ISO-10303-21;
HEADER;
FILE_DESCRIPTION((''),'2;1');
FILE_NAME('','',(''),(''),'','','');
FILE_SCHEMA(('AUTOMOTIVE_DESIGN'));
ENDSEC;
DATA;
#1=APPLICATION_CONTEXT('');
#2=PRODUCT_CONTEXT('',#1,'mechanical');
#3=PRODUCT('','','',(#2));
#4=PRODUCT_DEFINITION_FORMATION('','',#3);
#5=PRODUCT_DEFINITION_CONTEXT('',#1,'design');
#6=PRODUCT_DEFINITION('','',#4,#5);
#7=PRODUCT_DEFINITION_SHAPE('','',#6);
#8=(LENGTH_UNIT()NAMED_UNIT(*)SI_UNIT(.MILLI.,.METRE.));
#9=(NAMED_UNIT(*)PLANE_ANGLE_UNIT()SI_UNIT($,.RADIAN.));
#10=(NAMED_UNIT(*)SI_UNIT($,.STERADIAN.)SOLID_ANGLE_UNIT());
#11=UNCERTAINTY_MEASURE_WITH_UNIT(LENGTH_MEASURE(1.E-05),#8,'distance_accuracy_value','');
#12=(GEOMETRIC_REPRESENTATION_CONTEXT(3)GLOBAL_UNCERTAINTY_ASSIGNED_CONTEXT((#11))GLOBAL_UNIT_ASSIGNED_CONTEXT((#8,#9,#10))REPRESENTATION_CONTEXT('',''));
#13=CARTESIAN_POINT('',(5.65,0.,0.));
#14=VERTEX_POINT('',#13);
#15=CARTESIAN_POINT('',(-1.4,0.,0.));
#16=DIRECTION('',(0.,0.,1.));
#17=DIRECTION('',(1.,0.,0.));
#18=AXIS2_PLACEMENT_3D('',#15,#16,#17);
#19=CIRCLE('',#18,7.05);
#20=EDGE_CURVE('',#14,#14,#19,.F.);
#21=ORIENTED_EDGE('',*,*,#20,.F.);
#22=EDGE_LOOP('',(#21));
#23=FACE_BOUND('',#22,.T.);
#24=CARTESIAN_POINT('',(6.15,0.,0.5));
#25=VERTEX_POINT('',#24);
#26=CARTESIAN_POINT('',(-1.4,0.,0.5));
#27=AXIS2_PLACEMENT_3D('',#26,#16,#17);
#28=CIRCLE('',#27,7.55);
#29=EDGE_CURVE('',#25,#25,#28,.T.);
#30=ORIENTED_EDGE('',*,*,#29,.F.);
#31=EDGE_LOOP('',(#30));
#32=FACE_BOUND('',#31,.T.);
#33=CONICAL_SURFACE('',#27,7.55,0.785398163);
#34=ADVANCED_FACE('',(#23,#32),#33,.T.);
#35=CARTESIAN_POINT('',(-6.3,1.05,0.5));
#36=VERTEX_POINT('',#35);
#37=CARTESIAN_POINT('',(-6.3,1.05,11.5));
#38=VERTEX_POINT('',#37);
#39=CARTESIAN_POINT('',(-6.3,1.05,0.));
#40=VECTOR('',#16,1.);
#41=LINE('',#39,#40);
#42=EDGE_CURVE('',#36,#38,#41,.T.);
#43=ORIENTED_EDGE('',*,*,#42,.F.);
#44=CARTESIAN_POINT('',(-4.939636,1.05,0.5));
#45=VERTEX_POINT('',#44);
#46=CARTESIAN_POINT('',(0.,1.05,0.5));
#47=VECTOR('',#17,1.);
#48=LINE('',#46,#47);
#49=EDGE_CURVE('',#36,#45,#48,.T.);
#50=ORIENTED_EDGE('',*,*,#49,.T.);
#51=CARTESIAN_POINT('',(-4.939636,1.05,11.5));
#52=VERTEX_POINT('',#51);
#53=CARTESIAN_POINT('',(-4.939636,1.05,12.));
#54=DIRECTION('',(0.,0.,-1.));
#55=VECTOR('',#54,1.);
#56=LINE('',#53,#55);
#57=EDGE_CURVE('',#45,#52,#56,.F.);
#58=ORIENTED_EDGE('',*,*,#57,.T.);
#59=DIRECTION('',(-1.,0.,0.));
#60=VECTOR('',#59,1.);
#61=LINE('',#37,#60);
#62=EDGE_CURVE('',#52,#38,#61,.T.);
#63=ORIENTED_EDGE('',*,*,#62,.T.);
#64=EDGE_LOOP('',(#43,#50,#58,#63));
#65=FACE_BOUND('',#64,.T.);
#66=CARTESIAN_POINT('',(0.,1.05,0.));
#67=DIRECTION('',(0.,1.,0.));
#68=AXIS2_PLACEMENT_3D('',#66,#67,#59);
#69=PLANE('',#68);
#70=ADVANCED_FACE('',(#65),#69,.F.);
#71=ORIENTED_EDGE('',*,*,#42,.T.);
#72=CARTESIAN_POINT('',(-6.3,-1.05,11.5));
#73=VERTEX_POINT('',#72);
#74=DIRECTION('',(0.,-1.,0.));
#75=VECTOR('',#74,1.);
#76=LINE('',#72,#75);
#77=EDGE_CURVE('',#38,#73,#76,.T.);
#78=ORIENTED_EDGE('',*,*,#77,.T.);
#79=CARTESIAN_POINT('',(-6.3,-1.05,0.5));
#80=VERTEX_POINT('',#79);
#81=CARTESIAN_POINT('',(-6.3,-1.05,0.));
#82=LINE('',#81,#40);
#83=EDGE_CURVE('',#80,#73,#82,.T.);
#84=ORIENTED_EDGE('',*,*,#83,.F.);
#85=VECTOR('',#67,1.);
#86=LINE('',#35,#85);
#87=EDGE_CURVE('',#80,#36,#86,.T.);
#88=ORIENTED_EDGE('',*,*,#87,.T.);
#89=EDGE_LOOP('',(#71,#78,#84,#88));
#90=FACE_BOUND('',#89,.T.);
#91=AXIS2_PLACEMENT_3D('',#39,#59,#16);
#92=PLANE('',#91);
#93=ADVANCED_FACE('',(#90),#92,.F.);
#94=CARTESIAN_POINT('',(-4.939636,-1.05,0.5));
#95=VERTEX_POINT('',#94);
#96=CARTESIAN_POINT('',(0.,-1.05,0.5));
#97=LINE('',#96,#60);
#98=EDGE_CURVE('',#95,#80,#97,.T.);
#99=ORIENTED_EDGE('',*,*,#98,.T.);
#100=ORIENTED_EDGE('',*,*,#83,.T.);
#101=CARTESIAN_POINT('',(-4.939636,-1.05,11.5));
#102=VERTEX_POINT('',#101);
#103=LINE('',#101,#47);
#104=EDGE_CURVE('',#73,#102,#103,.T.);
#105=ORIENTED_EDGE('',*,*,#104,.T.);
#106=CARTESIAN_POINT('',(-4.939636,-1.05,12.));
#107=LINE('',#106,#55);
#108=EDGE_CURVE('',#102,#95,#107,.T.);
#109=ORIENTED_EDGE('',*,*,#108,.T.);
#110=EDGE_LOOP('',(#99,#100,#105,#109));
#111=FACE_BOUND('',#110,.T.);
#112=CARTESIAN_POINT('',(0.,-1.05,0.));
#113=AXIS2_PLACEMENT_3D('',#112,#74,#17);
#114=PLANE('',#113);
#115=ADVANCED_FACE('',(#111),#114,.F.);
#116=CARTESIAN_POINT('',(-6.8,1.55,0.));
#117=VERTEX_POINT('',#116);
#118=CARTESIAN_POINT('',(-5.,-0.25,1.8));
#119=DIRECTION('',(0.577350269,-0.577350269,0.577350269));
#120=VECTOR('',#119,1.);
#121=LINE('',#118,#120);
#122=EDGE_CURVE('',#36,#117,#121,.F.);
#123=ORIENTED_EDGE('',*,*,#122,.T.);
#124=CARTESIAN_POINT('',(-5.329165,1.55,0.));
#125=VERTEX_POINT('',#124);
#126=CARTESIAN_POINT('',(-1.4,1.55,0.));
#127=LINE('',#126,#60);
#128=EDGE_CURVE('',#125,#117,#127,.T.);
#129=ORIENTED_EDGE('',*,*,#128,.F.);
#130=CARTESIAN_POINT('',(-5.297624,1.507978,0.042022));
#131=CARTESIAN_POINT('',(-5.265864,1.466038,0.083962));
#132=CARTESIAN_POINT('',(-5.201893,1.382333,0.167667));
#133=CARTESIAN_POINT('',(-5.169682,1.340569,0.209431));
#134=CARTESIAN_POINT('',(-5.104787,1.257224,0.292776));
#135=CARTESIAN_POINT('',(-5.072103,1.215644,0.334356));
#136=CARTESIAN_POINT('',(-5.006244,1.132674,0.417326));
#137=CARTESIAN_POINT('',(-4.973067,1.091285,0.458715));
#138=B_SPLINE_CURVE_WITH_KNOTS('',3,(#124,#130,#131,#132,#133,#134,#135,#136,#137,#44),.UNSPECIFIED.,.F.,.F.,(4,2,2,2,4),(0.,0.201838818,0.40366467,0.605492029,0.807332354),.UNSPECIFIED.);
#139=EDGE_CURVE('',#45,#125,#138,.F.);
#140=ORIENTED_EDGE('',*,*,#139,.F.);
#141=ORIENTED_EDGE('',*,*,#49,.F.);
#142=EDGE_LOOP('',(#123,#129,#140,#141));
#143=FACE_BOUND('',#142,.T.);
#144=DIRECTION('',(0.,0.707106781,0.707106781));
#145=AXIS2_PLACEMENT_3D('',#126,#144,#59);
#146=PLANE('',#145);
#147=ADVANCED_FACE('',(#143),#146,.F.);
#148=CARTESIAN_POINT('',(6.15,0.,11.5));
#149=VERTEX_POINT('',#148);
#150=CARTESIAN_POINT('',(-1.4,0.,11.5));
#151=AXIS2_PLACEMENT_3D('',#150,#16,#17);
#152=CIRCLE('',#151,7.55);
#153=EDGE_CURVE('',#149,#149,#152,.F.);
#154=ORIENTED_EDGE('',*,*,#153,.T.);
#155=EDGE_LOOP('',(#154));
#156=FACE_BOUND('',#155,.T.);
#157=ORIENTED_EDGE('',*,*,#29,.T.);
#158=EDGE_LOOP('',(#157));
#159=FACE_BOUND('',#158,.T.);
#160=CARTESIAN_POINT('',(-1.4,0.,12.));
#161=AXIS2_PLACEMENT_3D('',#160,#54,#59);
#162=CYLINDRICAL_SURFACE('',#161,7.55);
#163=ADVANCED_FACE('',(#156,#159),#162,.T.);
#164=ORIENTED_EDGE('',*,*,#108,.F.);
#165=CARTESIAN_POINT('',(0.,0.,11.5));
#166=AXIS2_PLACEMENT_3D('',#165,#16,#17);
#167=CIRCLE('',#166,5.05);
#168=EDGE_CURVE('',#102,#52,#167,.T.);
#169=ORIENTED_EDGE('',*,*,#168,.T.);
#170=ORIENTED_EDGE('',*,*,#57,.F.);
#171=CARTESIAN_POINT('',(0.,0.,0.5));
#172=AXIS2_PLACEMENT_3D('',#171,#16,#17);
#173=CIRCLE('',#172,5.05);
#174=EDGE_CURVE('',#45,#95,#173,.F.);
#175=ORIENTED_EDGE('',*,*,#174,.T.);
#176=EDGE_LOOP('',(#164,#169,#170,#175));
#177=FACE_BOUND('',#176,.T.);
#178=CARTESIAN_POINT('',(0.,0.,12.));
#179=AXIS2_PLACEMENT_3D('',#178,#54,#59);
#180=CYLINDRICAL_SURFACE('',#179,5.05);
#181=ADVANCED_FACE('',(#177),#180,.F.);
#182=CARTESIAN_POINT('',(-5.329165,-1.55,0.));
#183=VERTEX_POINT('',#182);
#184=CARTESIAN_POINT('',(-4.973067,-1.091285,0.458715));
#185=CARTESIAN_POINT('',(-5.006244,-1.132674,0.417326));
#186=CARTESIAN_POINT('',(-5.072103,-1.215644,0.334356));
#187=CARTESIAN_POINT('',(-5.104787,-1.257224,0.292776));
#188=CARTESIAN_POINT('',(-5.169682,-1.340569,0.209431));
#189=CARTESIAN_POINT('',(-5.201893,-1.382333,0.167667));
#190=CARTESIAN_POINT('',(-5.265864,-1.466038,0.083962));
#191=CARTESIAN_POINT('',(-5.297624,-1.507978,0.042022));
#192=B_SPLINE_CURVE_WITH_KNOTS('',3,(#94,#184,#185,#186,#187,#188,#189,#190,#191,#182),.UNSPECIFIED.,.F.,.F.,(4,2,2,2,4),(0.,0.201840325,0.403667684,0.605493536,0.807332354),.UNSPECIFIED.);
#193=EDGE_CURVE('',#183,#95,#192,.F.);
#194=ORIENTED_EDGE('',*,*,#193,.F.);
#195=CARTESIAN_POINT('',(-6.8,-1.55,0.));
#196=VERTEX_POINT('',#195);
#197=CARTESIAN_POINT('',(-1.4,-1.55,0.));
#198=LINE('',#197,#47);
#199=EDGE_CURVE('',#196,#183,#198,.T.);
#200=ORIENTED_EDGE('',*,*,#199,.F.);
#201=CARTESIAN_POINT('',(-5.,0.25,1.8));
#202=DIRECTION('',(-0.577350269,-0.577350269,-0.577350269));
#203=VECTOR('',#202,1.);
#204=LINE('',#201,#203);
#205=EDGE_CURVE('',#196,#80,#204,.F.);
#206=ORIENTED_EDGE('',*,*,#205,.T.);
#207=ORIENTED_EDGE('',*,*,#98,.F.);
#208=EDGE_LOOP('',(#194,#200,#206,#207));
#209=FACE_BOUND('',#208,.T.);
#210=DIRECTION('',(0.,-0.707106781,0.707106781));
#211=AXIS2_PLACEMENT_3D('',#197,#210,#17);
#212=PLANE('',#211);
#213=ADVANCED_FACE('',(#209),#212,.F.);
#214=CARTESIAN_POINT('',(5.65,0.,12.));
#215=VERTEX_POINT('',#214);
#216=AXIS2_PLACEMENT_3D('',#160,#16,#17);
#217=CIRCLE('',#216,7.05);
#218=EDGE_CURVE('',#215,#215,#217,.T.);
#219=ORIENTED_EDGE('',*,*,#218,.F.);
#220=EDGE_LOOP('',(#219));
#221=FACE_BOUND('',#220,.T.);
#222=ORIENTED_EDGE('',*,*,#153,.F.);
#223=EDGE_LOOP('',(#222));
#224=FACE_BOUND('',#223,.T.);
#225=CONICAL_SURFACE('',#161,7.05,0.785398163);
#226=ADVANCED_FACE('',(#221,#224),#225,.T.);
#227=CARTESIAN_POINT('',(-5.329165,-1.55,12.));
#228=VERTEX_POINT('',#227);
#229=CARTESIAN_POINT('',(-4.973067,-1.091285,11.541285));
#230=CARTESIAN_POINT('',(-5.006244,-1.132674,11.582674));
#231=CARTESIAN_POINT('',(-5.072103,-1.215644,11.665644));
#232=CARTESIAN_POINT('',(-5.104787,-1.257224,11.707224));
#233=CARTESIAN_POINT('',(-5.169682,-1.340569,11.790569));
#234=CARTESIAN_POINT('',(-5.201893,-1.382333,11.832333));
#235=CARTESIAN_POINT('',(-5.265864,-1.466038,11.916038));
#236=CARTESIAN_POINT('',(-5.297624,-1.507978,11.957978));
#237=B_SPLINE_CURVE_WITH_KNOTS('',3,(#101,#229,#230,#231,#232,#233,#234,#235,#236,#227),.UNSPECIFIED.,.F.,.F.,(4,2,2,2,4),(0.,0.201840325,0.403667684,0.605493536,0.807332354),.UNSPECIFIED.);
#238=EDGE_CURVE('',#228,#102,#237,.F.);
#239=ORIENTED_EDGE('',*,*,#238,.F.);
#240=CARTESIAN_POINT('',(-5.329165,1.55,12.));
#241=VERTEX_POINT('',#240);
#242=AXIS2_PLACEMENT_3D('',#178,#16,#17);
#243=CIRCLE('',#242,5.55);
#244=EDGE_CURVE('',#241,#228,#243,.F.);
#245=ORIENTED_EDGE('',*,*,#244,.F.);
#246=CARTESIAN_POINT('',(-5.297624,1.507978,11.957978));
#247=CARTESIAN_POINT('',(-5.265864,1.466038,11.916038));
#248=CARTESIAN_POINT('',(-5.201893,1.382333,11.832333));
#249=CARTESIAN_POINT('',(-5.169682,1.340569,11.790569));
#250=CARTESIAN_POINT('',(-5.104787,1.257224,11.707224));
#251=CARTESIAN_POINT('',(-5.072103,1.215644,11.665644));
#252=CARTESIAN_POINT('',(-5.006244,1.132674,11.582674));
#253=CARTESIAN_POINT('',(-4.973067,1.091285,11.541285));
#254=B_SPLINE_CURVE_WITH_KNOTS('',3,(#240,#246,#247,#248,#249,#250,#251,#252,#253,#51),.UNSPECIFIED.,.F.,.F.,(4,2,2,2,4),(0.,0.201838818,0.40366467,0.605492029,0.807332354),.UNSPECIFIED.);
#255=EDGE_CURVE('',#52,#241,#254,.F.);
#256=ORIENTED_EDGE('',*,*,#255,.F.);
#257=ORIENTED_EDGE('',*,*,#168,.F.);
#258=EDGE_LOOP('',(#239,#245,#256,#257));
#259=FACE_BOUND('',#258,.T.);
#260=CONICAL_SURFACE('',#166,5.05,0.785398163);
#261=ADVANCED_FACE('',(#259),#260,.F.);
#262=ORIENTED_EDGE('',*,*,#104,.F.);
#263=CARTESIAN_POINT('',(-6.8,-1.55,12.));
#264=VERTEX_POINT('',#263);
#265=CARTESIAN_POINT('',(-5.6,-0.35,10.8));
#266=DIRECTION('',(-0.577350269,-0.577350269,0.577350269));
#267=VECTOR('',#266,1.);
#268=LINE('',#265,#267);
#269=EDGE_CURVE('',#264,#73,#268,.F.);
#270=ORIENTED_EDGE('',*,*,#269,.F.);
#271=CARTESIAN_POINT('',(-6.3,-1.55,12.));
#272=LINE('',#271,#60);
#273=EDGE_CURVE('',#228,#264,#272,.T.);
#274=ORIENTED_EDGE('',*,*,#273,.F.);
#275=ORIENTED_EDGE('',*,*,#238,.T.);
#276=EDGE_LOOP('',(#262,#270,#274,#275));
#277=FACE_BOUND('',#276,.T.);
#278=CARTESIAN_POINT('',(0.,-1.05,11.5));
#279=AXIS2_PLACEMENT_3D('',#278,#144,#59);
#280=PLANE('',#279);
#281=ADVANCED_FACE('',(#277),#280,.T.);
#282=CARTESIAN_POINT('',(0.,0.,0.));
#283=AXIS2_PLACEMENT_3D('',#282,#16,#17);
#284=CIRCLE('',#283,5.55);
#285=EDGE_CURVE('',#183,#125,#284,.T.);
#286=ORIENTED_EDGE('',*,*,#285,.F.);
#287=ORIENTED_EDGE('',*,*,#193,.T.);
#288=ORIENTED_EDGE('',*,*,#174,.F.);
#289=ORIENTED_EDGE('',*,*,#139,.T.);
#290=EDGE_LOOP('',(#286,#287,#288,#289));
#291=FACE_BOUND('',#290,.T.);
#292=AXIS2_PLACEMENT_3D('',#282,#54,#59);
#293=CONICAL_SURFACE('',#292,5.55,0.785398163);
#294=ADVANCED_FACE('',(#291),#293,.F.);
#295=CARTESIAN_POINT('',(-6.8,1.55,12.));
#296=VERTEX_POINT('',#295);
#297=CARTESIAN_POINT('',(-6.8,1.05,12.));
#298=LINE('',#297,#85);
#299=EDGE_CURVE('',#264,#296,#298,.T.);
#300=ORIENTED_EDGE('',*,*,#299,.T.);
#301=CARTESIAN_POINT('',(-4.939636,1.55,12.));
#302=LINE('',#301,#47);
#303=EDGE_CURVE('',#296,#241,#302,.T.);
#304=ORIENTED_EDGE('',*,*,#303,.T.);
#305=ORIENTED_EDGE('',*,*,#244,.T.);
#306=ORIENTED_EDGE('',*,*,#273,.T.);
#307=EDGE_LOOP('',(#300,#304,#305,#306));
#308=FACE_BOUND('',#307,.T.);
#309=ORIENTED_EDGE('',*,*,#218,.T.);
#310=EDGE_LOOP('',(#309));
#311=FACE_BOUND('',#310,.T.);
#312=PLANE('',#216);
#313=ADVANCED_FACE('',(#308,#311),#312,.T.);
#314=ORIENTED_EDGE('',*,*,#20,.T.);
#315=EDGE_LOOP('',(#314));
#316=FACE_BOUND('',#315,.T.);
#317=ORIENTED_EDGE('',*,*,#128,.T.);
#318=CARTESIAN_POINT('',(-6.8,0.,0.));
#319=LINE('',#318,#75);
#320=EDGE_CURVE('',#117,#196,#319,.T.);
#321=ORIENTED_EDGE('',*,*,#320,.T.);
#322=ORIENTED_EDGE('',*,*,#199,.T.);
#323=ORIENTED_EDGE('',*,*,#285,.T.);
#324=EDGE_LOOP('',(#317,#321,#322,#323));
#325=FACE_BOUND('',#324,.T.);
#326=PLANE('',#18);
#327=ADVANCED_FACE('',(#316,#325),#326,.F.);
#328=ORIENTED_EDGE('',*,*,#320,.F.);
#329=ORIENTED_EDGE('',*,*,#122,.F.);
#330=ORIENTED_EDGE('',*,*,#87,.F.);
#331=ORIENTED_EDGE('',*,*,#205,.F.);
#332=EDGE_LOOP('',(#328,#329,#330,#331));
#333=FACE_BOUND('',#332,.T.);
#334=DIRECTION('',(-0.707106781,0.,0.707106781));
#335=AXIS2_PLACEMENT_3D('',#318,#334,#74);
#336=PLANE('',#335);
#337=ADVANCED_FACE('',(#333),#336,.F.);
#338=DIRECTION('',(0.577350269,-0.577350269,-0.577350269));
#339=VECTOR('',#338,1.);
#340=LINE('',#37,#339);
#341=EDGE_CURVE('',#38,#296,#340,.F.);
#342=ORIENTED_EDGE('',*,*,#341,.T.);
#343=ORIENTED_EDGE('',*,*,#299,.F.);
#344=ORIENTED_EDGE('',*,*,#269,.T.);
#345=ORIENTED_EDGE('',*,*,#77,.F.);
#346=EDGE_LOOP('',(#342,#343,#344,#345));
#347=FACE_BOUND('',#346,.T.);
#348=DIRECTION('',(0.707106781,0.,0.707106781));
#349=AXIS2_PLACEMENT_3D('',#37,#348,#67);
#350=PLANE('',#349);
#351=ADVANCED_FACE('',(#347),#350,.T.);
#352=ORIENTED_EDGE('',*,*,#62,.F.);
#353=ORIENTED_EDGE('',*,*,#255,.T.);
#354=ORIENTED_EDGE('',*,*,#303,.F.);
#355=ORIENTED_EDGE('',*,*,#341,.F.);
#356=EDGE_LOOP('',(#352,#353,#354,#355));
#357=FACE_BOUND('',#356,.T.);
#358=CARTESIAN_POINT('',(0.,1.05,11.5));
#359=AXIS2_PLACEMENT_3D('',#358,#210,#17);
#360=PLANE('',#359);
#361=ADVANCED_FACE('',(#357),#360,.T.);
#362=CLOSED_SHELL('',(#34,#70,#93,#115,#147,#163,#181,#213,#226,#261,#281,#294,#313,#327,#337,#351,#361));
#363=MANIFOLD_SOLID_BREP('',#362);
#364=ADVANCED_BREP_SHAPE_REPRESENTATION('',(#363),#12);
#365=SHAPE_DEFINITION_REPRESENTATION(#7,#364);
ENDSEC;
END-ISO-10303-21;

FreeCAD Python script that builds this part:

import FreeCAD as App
import Part
import Sketcher

V = App.Vector
Q = App.Units.Quantity


def edges_at(feature, points):
    """Names of the edges that pass closest to the given points."""
    edges = feature.Shape.Edges
    near = lambda p: min(range(len(edges)), key=lambda i: edges[i].distToShape(Part.Vertex(*p))[0])
    return sorted({f"Edge{near(p) + 1}" for p in points})

doc = App.newDocument("Part")
body = doc.addObject("PartDesign::Body", "Body")

sketch1 = doc.addObject("Sketcher::SketchObject", "Sketch")
body.addObject(sketch1)
sketch1.AttachmentSupport = (doc.XY_Plane, [""])
sketch1.MapMode = "FlatFace"
sketch1.addGeometry([
    Part.Circle(V(-1, 0, 0), V(0, 0, 1), 8),
    Part.Circle(V(0, 0, 0), V(0, 0, 1), 5),
], False)
sketch1.addConstraint([
    Sketcher.Constraint("Coincident", 1, 3, -1, 1),
    Sketcher.Constraint("PointOnObject", 0, 3, -1),
    Sketcher.Constraint("Diameter", 0, Q("15.1 mm")),
    Sketcher.Constraint("Diameter", 1, Q("10.1 mm")),
    Sketcher.Constraint("DistanceX", 0, 3, -1, 1, Q("1.4 mm")),
])
pad1 = doc.addObject("PartDesign::Pad", "Pad")
body.addObject(pad1)
pad1.Profile = sketch1
pad1.Length = 12

sketch2 = doc.addObject("Sketcher::SketchObject", "Sketch001")
body.addObject(sketch2)
sketch2.AttachmentSupport = (doc.XY_Plane, [""])
sketch2.MapMode = "FlatFace"
sketch2.AttachmentOffset = App.Placement(V(0, 0, 12), App.Rotation())
sketch2.addGeometry([
    Part.LineSegment(V(-6.3, 1.1, 0), V(-6.3, -1.1, 0)),
    Part.LineSegment(V(-6.3, -1.1, 0), V(0, -1.1, 0)),
    Part.LineSegment(V(0, -1.1, 0), V(0, 1.1, 0)),
    Part.LineSegment(V(0, 1.1, 0), V(-6.3, 1.1, 0)),
], False)
sketch2.addConstraint([
    Sketcher.Constraint("Coincident", 0, 2, 1, 1),
    Sketcher.Constraint("Coincident", 1, 2, 2, 1),
    Sketcher.Constraint("Coincident", 2, 2, 3, 1),
    Sketcher.Constraint("Coincident", 3, 2, 0, 1),
    Sketcher.Constraint("Vertical", 0),
    Sketcher.Constraint("Horizontal", 1),
    Sketcher.Constraint("Vertical", 2),
    Sketcher.Constraint("Horizontal", 3),
    Sketcher.Constraint("Symmetric", 1, 2, 2, 2, -1, 1),
    Sketcher.Constraint("DistanceX", 1, 1, 1, 2, Q("6.3 mm")),
    Sketcher.Constraint("DistanceY", 0, 2, 0, 1, Q("2.1 mm")),
])
pocket1 = doc.addObject("PartDesign::Pocket", "Pocket")
body.addObject(pocket1)
pocket1.Profile = sketch2
pocket1.Type = "ThroughAll"
doc.recompute()

chamfer = doc.addObject("PartDesign::Chamfer", "Chamfer")
body.addObject(chamfer)
chamfer.Base = (pocket1, edges_at(pocket1, [
    (5.05, 0, 12),
    (-5.62, -1.05, 12),
    (-5.62, 1.05, 12),
    (-6.3, 0, 12),
]))
chamfer.Size = 0.5
doc.recompute()

chamfer2 = doc.addObject("PartDesign::Chamfer", "Chamfer001")
body.addObject(chamfer2)
chamfer2.Base = (chamfer, edges_at(chamfer, [
    (5.05, 0, 0),
    (-5.62, -1.05, 0),
    (-6.3, 0, 0),
    (-5.62, 1.05, 0),
]))
chamfer2.Size = 0.5
doc.recompute()

chamfer3 = doc.addObject("PartDesign::Chamfer", "Chamfer002")
body.addObject(chamfer3)
chamfer3.Base = (chamfer2, edges_at(chamfer2, [(-8.95, 0, 0), (-8.95, 0, 12)]))
chamfer3.Size = 0.5

doc.recompute()
